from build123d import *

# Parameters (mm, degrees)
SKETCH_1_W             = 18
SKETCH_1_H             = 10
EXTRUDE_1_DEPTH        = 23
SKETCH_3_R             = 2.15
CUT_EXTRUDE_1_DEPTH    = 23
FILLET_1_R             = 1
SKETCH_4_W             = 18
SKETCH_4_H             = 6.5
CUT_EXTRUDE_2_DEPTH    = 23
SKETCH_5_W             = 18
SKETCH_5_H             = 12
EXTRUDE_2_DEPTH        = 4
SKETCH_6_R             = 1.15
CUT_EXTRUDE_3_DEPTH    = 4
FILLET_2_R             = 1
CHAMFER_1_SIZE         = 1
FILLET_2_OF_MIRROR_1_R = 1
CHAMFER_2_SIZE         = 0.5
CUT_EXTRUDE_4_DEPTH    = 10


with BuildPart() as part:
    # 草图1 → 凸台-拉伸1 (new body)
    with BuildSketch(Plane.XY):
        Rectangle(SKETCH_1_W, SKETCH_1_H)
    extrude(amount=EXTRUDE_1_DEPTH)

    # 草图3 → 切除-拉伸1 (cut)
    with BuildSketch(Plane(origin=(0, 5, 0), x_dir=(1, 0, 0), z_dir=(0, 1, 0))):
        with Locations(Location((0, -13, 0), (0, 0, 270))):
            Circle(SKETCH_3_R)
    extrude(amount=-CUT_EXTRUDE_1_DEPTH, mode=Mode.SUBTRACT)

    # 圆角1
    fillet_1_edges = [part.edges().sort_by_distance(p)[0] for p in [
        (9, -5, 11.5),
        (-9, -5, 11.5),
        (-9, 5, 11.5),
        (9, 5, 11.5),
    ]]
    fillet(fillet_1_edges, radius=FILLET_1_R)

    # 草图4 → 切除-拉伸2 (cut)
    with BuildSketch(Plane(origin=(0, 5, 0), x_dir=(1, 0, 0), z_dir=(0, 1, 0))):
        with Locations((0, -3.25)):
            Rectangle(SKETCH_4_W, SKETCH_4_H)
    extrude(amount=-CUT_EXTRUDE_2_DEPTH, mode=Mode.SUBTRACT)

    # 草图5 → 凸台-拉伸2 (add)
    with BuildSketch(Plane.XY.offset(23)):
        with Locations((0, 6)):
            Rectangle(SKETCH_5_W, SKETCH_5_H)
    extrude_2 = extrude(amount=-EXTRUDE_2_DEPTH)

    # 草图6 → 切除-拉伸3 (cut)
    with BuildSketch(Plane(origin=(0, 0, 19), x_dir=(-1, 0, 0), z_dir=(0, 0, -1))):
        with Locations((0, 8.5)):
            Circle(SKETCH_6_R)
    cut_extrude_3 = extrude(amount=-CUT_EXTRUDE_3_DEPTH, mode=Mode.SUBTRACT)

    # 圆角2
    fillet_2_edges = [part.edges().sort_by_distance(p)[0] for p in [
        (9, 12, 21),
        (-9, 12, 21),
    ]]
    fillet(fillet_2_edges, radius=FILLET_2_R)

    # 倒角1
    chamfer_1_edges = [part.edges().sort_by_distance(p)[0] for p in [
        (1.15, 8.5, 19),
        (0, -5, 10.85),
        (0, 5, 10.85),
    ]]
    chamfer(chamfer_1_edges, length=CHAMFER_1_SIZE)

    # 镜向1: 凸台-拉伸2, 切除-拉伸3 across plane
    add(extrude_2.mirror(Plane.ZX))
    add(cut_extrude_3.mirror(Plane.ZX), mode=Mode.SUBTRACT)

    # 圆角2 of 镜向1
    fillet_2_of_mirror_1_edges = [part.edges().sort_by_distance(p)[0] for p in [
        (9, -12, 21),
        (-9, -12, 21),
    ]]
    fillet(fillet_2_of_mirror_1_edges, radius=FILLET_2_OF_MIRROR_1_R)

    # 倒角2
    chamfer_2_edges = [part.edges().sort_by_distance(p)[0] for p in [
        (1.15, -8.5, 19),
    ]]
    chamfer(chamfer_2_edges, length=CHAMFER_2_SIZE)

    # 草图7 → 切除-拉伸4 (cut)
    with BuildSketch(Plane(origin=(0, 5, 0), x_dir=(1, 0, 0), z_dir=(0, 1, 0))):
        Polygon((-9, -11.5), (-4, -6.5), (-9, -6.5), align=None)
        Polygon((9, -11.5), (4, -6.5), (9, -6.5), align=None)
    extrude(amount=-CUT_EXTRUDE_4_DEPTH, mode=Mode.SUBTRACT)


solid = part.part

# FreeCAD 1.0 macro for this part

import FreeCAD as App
import Part
import Sketcher
from FreeCAD import Vector


def edges_at(feature, points):
    """Names of the edges that pass closest to the given points."""
    edges = feature.Shape.Edges
    near = lambda p: min(range(len(edges)), key=lambda i: edges[i].distToShape(Part.Vertex(*p))[0])
    return sorted({f"Edge{near(p) + 1}" for p in points})

doc = App.newDocument("Part")
body = doc.addObject("PartDesign::Body", "Body")

sketch1 = body.newObject("Sketcher::SketchObject", "Sketch")
sketch1.AttachmentSupport = (doc.getObject("XY_Plane"), [""])
sketch1.MapMode = "FlatFace"
sketch1.addGeometry([
    Part.LineSegment(Vector(-9, 5, 0), Vector(-9, -5, 0)),
    Part.LineSegment(Vector(-9, -5, 0), Vector(9, -5, 0)),
    Part.LineSegment(Vector(9, -5, 0), Vector(9, 5, 0)),
    Part.LineSegment(Vector(9, 5, 0), Vector(-9, 5, 0)),
], False)
sketch1.addConstraint([
    Sketcher.Constraint("Coincident", 0, 2, 1, 1),
    Sketcher.Constraint("Coincident", 1, 2, 2, 1),
    Sketcher.Constraint("Coincident", 2, 2, 3, 1),
    Sketcher.Constraint("Coincident", 3, 2, 0, 1),
    Sketcher.Constraint("Vertical", 0),
    Sketcher.Constraint("Horizontal", 1),
    Sketcher.Constraint("Vertical", 2),
    Sketcher.Constraint("Horizontal", 3),
    Sketcher.Constraint("Symmetric", 0, 2, 2, 2, -1, 1),
    Sketcher.Constraint("DistanceX", 1, 1, 1, 2, 18.0),
    Sketcher.Constraint("DistanceY", 0, 2, 0, 1, 10.0),
])
pad1 = body.newObject("PartDesign::Pad", "Pad")
pad1.Profile = sketch1
pad1.Length = 23

sketch2 = body.newObject("Sketcher::SketchObject", "Sketch001")
sketch2.AttachmentSupport = (doc.getObject("XZ_Plane"), [""])
sketch2.MapMode = "FlatFace"
sketch2.AttachmentOffset = App.Placement(Vector(0, 0, -5), App.Rotation())
sketch2.addGeometry(Part.Circle(Vector(0, 13, 0), Vector(0, 0, 1), 2.1), False)
sketch2.addConstraint([
    Sketcher.Constraint("PointOnObject", 0, 3, -2),
    Sketcher.Constraint("Diameter", 0, 4.3),
    Sketcher.Constraint("DistanceY", -1, 1, 0, 3, 13.0),
])
pocket1 = body.newObject("PartDesign::Pocket", "Pocket")
pocket1.Profile = sketch2
pocket1.Length = 23
pocket1.Reversed = True
doc.recompute()

fillet = body.newObject("PartDesign::Fillet", "Fillet")
fillet.Base = (pocket1, edges_at(pocket1, [
    (9, -5, 11.5),
    (-9, -5, 11.5),
    (-9, 5, 11.5),
    (9, 5, 11.5),
]))
fillet.Radius = 1

sketch3 = body.newObject("Sketcher::SketchObject", "Sketch002")
sketch3.AttachmentSupport = (doc.getObject("XZ_Plane"), [""])
sketch3.MapMode = "FlatFace"
sketch3.AttachmentOffset = App.Placement(Vector(0, 0, -5), App.Rotation())
sketch3.addGeometry([
    Part.LineSegment(Vector(-9, 0, 0), Vector(-9, 6, 0)),
    Part.LineSegment(Vector(-9, 6, 0), Vector(9, 6, 0)),
    Part.LineSegment(Vector(9, 6, 0), Vector(9, 0, 0)),
    Part.LineSegment(Vector(9, 0, 0), Vector(-9, 0, 0)),
], False)
sketch3.addConstraint([
    Sketcher.Constraint("Coincident", 0, 2, 1, 1),
    Sketcher.Constraint("Coincident", 1, 2, 2, 1),
    Sketcher.Constraint("Coincident", 2, 2, 3, 1),
    Sketcher.Constraint("Coincident", 3, 2, 0, 1),
    Sketcher.Constraint("Vertical", 0),
    Sketcher.Constraint("Horizontal", 1),
    Sketcher.Constraint("Vertical", 2),
    Sketcher.Constraint("Horizontal", 3),
    Sketcher.Constraint("Symmetric", 2, 2, 3, 2, -1, 1),
    Sketcher.Constraint("DistanceX", 1, 1, 1, 2, 18.0),
    Sketcher.Constraint("DistanceY", 0, 1, 0, 2, 6.5),
])
pocket2 = body.newObject("PartDesign::Pocket", "Pocket001")
pocket2.Profile = sketch3
pocket2.Length = 23
pocket2.Reversed = True

sketch4 = body.newObject("Sketcher::SketchObject", "Sketch003")
sketch4.AttachmentSupport = (doc.getObject("XY_Plane"), [""])
sketch4.MapMode = "FlatFace"
sketch4.AttachmentOffset = App.Placement(Vector(0, 0, 23), App.Rotation())
sketch4.addGeometry([
    Part.LineSegment(Vector(-9, 12, 0), Vector(-9, 0, 0)),
    Part.LineSegment(Vector(-9, 0, 0), Vector(9, 0, 0)),
    Part.LineSegment(Vector(9, 0, 0), Vector(9, 12, 0)),
    Part.LineSegment(Vector(9, 12, 0), Vector(-9, 12, 0)),
], False)
sketch4.addConstraint([
    Sketcher.Constraint("Coincident", 0, 2, 1, 1),
    Sketcher.Constraint("Coincident", 1, 2, 2, 1),
    Sketcher.Constraint("Coincident", 2, 2, 3, 1),
    Sketcher.Constraint("Coincident", 3, 2, 0, 1),
    Sketcher.Constraint("Vertical", 0),
    Sketcher.Constraint("Horizontal", 1),
    Sketcher.Constraint("Vertical", 2),
    Sketcher.Constraint("Horizontal", 3),
    Sketcher.Constraint("Symmetric", 0, 2, 1, 2, -1, 1),
    Sketcher.Constraint("DistanceX", 1, 1, 1, 2, 18.0),
    Sketcher.Constraint("DistanceY", 0, 2, 0, 1, 12.0),
])
pad2 = body.newObject("PartDesign::Pad", "Pad001")
pad2.Profile = sketch4
pad2.Length = 4
pad2.Reversed = True

sketch5 = body.newObject("Sketcher::SketchObject", "Sketch004")
sketch5.AttachmentSupport = (doc.getObject("XY_Plane"), [""])
sketch5.MapMode = "FlatFace"
sketch5.AttachmentOffset = App.Placement(Vector(0, 0, 19), App.Rotation())
sketch5.addGeometry(Part.Circle(Vector(0, 8.5, 0), Vector(0, 0, 1), 1.1), False)
sketch5.addConstraint([
    Sketcher.Constraint("PointOnObject", 0, 3, -2),
    Sketcher.Constraint("Diameter", 0, 2.3),
    Sketcher.Constraint("DistanceY", -1, 1, 0, 3, 8.5),
])
pocket3 = body.newObject("PartDesign::Pocket", "Pocket002")
pocket3.Profile = sketch5
pocket3.Length = 4
pocket3.Reversed = True
doc.recompute()

fillet2 = body.newObject("PartDesign::Fillet", "Fillet001")
fillet2.Base = (pocket3, edges_at(pocket3, [(9, 12, 21), (-9, 12, 21)]))
fillet2.Radius = 1
doc.recompute()

chamfer = body.newObject("PartDesign::Chamfer", "Chamfer")
chamfer.Base = (fillet2, edges_at(fillet2, [(1.15, 8.5, 19), (0, -5, 10.85), (0, 5, 10.85)]))
chamfer.Size = 1
doc.recompute()

mirrored = body.newObject("PartDesign::Mirrored", "Mirrored")
mirrored.Originals = [pad2, pocket3]
mirrored.MirrorPlane = (doc.getObject("XZ_Plane"), [""])
body.Tip = mirrored
doc.recompute()

fillet3 = body.newObject("PartDesign::Fillet", "Fillet002")
fillet3.Base = (mirrored, edges_at(mirrored, [(9, -12, 21), (-9, -12, 21)]))
fillet3.Radius = 1
doc.recompute()

chamfer2 = body.newObject("PartDesign::Chamfer", "Chamfer001")
chamfer2.Base = (fillet3, edges_at(fillet3, [(1.15, -8.5, 19)]))
chamfer2.Size = 0.5

sketch6 = body.newObject("Sketcher::SketchObject", "Sketch005")
sketch6.AttachmentSupport = (doc.getObject("XZ_Plane"), [""])
sketch6.MapMode = "FlatFace"
sketch6.AttachmentOffset = App.Placement(Vector(0, 0, -5), App.Rotation())
sketch6.addGeometry([
    Part.LineSegment(Vector(-9, 12, 0), Vector(-4, 6, 0)),
    Part.LineSegment(Vector(-4, 6, 0), Vector(-9, 6, 0)),
    Part.LineSegment(Vector(-9, 6, 0), Vector(-9, 12, 0)),
    Part.LineSegment(Vector(4, 6, 0), Vector(9, 12, 0)),
    Part.LineSegment(Vector(9, 12, 0), Vector(9, 6, 0)),
    Part.LineSegment(Vector(9, 6, 0), Vector(4, 6, 0)),
], False)
sketch6.addConstraint([
    Sketcher.Constraint("Coincident", 0, 2, 1, 1),
    Sketcher.Constraint("Coincident", 1, 2, 2, 1),
    Sketcher.Constraint("Coincident", 2, 2, 0, 1),
    Sketcher.Constraint("Coincident", 3, 2, 4, 1),
    Sketcher.Constraint("Coincident", 4, 2, 5, 1),
    Sketcher.Constraint("Coincident", 5, 2, 3, 1),
    Sketcher.Constraint("Horizontal", 1),
    Sketcher.Constraint("Vertical", 2),
    Sketcher.Constraint("Vertical", 4),
    Sketcher.Constraint("Horizontal", 5),
    Sketcher.Constraint("Symmetric", 2, 2, 3, 2, -2),
    Sketcher.Constraint("Symmetric", 0, 2, 5, 2, -2),
    Sketcher.Constraint("Perpendicular", 0, 3),
    Sketcher.Constraint("DistanceX", 1, 2, 1, 1, 5.0),
    Sketcher.Constraint("DistanceX", 0, 2, -1, 1, 4.0),
    Sketcher.Constraint("DistanceY", -1, 1, 0, 2, 6.5),
])
pocket4 = body.newObject("PartDesign::Pocket", "Pocket003")
pocket4.Profile = sketch6
pocket4.Length = 10
pocket4.Reversed = True

doc.recompute()
